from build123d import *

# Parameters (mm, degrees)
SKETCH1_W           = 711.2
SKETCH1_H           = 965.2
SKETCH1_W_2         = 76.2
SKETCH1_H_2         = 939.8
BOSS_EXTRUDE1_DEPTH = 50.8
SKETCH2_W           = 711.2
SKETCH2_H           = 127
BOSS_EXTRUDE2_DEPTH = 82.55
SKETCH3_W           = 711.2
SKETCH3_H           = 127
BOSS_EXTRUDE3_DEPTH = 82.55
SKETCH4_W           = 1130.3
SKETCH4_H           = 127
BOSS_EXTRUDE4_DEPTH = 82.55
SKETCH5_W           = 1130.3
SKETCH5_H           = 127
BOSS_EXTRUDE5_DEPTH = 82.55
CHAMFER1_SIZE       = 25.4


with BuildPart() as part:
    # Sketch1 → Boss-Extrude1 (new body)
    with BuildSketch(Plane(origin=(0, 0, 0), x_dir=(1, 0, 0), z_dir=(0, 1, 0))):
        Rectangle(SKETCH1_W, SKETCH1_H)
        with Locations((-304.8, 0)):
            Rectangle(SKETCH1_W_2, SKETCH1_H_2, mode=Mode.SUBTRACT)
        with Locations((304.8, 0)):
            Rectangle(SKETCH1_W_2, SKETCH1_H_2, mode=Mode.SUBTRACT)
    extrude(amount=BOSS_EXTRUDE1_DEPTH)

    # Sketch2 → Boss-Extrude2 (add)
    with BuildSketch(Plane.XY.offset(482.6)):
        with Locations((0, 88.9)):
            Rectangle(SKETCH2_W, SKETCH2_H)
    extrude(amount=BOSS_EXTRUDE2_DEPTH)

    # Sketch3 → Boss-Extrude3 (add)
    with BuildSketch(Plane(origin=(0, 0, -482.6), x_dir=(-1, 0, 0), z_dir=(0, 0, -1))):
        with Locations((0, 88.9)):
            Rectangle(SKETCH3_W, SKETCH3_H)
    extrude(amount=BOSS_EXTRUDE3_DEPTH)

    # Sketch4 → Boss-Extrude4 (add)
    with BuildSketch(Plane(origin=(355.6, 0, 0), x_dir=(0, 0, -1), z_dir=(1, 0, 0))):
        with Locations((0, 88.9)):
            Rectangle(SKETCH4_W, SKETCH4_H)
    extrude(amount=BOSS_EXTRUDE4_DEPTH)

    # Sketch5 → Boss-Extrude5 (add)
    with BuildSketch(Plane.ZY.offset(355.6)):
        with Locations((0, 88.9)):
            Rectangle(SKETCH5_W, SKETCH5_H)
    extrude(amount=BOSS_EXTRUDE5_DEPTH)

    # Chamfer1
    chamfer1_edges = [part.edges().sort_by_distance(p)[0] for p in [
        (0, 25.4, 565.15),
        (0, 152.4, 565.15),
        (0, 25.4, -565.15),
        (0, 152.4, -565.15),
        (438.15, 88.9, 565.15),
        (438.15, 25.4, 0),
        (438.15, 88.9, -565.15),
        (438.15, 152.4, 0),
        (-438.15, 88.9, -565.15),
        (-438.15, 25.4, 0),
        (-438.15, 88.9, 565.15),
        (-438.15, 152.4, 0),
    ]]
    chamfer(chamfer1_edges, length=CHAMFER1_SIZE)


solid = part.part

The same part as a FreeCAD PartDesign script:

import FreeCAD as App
import Part
import Sketcher

V = App.Vector
Q = App.Units.Quantity


def edges_at(feature, points):
    """Names of the edges that pass closest to the given points."""
    edges = feature.Shape.Edges
    near = lambda p: min(range(len(edges)), key=lambda i: edges[i].distToShape(Part.Vertex(*p))[0])
    return sorted({f"Edge{near(p) + 1}" for p in points})

doc = App.newDocument("Part")
params = doc.addObject("Spreadsheet::Sheet", "Params")
for row, (alias, value) in enumerate([
    ("sketch1_width", "28 in"),
    ("sketch1_width2", "3 in"),
    ("sketch1_height", "38 in"),
    ("sketch1_height2", "37 in"),
    ("pad1_length", "2 in"),
    ("sketch2_width", "28 in"),
    ("sketch2_height", "5 in"),
    ("pad2_length", "3.25 in"),
    ("sketch3_width", "28 in"),
    ("sketch3_height", "5 in"),
    ("pad3_length", "3.25 in"),
    ("sketch4_width", "5 in"),
    ("sketch4_height", "44.5 in"),
    ("pad4_length", "3.25 in"),
    ("sketch5_width", "5 in"),
    ("sketch5_height", "44.5 in"),
    ("pad5_length", "3.25 in"),
    ("chamfer_size", "1 in"),
], start=1):
    params.set(f"A{row}", alias)
    params.set(f"B{row}", "=" + value)
    params.setAlias(f"B{row}", alias)

body = doc.addObject("PartDesign::Body", "Body")

# Sketch on XZ plane
sketch1 = doc.addObject("Sketcher::SketchObject", "Sketch")
body.addObject(sketch1)
sketch1.AttachmentSupport = (doc.XZ_Plane, [""])
sketch1.MapMode = "FlatFace"
sketch1.addGeometry(Part.LineSegment(V(-356, -483, 0), V(-356, 483, 0)), False)
sketch1.addGeometry(Part.LineSegment(V(-356, 483, 0), V(356, 483, 0)), False)
sketch1.addGeometry(Part.LineSegment(V(356, 483, 0), V(356, -483, 0)), False)
sketch1.addGeometry(Part.LineSegment(V(356, -483, 0), V(-356, -483, 0)), False)
sketch1.addGeometry(Part.LineSegment(V(-267, 470, 0), V(-343, 470, 0)), False)
sketch1.addGeometry(Part.LineSegment(V(-343, 470, 0), V(-343, -470, 0)), False)
sketch1.addGeometry(Part.LineSegment(V(-343, -470, 0), V(-267, -470, 0)), False)
sketch1.addGeometry(Part.LineSegment(V(-267, -470, 0), V(-267, 470, 0)), False)
sketch1.addGeometry(Part.LineSegment(V(343, 470, 0), V(267, 470, 0)), False)
sketch1.addGeometry(Part.LineSegment(V(267, 470, 0), V(267, -470, 0)), False)
sketch1.addGeometry(Part.LineSegment(V(267, -470, 0), V(343, -470, 0)), False)
sketch1.addGeometry(Part.LineSegment(V(343, -470, 0), V(343, 470, 0)), False)
sketch1.addConstraint(Sketcher.Constraint("Coincident", 0, 2, 1, 1))
sketch1.addConstraint(Sketcher.Constraint("Coincident", 1, 2, 2, 1))
sketch1.addConstraint(Sketcher.Constraint("Coincident", 2, 2, 3, 1))
sketch1.addConstraint(Sketcher.Constraint("Coincident", 3, 2, 0, 1))
sketch1.addConstraint(Sketcher.Constraint("Coincident", 4, 2, 5, 1))
sketch1.addConstraint(Sketcher.Constraint("Coincident", 5, 2, 6, 1))
sketch1.addConstraint(Sketcher.Constraint("Coincident", 6, 2, 7, 1))
sketch1.addConstraint(Sketcher.Constraint("Coincident", 7, 2, 4, 1))
sketch1.addConstraint(Sketcher.Constraint("Coincident", 8, 2, 9, 1))
sketch1.addConstraint(Sketcher.Constraint("Coincident", 9, 2, 10, 1))
sketch1.addConstraint(Sketcher.Constraint("Coincident", 10, 2, 11, 1))
sketch1.addConstraint(Sketcher.Constraint("Coincident", 11, 2, 8, 1))
sketch1.addConstraint(Sketcher.Constraint("Vertical", 0))
sketch1.addConstraint(Sketcher.Constraint("Horizontal", 1))
sketch1.addConstraint(Sketcher.Constraint("Vertical", 2))
sketch1.addConstraint(Sketcher.Constraint("Horizontal", 3))
sketch1.addConstraint(Sketcher.Constraint("Horizontal", 4))
sketch1.addConstraint(Sketcher.Constraint("Vertical", 5))
sketch1.addConstraint(Sketcher.Constraint("Horizontal", 6))
sketch1.addConstraint(Sketcher.Constraint("Vertical", 7))
sketch1.addConstraint(Sketcher.Constraint("Horizontal", 8))
sketch1.addConstraint(Sketcher.Constraint("Vertical", 9))
sketch1.addConstraint(Sketcher.Constraint("Horizontal", 10))
sketch1.addConstraint(Sketcher.Constraint("Vertical", 11))
sketch1.addConstraint(Sketcher.Constraint("Symmetric", 0, 2, 2, 2, -1, 1))
sketch1.addConstraint(Sketcher.Constraint("Symmetric", 6, 2, 8, 2, -1, 1))
sketch1.addConstraint(Sketcher.Constraint("Symmetric", 4, 2, 10, 2, -1, 1))
sketch1.addConstraint(Sketcher.Constraint("Horizontal", 7, 2, 8, 2))
sketch1.addConstraint(Sketcher.Constraint("DistanceX", 1, 1, 1, 2, Q("28 in")))
sketch1.addConstraint(Sketcher.Constraint("DistanceX", 4, 2, 4, 1, Q("3 in")))
sketch1.addConstraint(Sketcher.Constraint("DistanceY", 0, 1, 0, 2, Q("38 in")))
sketch1.addConstraint(Sketcher.Constraint("DistanceY", 5, 2, 5, 1, Q("37 in")))
sketch1.addConstraint(Sketcher.Constraint("DistanceX", 7, 2, 8, 2, Q("21 in")))
sketch1.setExpression("Constraints[28]", "Params.sketch1_width")
sketch1.setExpression("Constraints[29]", "Params.sketch1_width2")
sketch1.setExpression("Constraints[30]", "Params.sketch1_height")
sketch1.setExpression("Constraints[31]", "Params.sketch1_height2")
pad1 = doc.addObject("PartDesign::Pad", "Pad")
body.addObject(pad1)
pad1.Profile = sketch1
pad1.setExpression("Length", "Params.pad1_length")
pad1.Reversed = True

# Sketch on XY plane
sketch2 = doc.addObject("Sketcher::SketchObject", "Sketch001")
body.addObject(sketch2)
sketch2.AttachmentSupport = (doc.XY_Plane, [""])
sketch2.MapMode = "FlatFace"
sketch2.AttachmentOffset = App.Placement(V(0, 0, 19 * 25.4), App.Rotation())
sketch2.addGeometry(Part.LineSegment(V(-356, 152, 0), V(-356, 25, 0)), False)
sketch2.addGeometry(Part.LineSegment(V(-356, 25, 0), V(356, 25, 0)), False)
sketch2.addGeometry(Part.LineSegment(V(356, 25, 0), V(356, 152, 0)), False)
sketch2.addGeometry(Part.LineSegment(V(356, 152, 0), V(-356, 152, 0)), False)
sketch2.addConstraint(Sketcher.Constraint("Coincident", 0, 2, 1, 1))
sketch2.addConstraint(Sketcher.Constraint("Coincident", 1, 2, 2, 1))
sketch2.addConstraint(Sketcher.Constraint("Coincident", 2, 2, 3, 1))
sketch2.addConstraint(Sketcher.Constraint("Coincident", 3, 2, 0, 1))
sketch2.addConstraint(Sketcher.Constraint("Vertical", 0))
sketch2.addConstraint(Sketcher.Constraint("Horizontal", 1))
sketch2.addConstraint(Sketcher.Constraint("Vertical", 2))
sketch2.addConstraint(Sketcher.Constraint("Horizontal", 3))
sketch2.addConstraint(Sketcher.Constraint("DistanceX", 1, 1, 1, 2, Q("28 in")))
sketch2.addConstraint(Sketcher.Constraint("DistanceY", 0, 2, 0, 1, Q("5 in")))
sketch2.addConstraint(Sketcher.Constraint("DistanceX", 0, 2, -1, 1, Q("14 in")))
sketch2.addConstraint(Sketcher.Constraint("DistanceY", -1, 1, 0, 2, Q("1 in")))
sketch2.setExpression("Constraints[8]", "Params.sketch2_width")
sketch2.setExpression("Constraints[9]", "Params.sketch2_height")
pad2 = doc.addObject("PartDesign::Pad", "Pad001")
body.addObject(pad2)
pad2.Profile = sketch2
pad2.setExpression("Length", "Params.pad2_length")

# Sketch on XY plane
sketch3 = doc.addObject("Sketcher::SketchObject", "Sketch002")
body.addObject(sketch3)
sketch3.AttachmentSupport = (doc.XY_Plane, [""])
sketch3.MapMode = "FlatFace"
sketch3.AttachmentOffset = App.Placement(V(0, 0, -19 * 25.4), App.Rotation())
sketch3.addGeometry(Part.LineSegment(V(356, 152, 0), V(356, 25, 0)), False)
sketch3.addGeometry(Part.LineSegment(V(356, 25, 0), V(-356, 25, 0)), False)
sketch3.addGeometry(Part.LineSegment(V(-356, 25, 0), V(-356, 152, 0)), False)
sketch3.addGeometry(Part.LineSegment(V(-356, 152, 0), V(356, 152, 0)), False)
sketch3.addConstraint(Sketcher.Constraint("Coincident", 0, 2, 1, 1))
sketch3.addConstraint(Sketcher.Constraint("Coincident", 1, 2, 2, 1))
sketch3.addConstraint(Sketcher.Constraint("Coincident", 2, 2, 3, 1))
sketch3.addConstraint(Sketcher.Constraint("Coincident", 3, 2, 0, 1))
sketch3.addConstraint(Sketcher.Constraint("Vertical", 0))
sketch3.addConstraint(Sketcher.Constraint("Horizontal", 1))
sketch3.addConstraint(Sketcher.Constraint("Vertical", 2))
sketch3.addConstraint(Sketcher.Constraint("Horizontal", 3))
sketch3.addConstraint(Sketcher.Constraint("DistanceX", 1, 2, 1, 1, Q("28 in")))
sketch3.addConstraint(Sketcher.Constraint("DistanceY", 0, 2, 0, 1, Q("5 in")))
sketch3.addConstraint(Sketcher.Constraint("DistanceX", -1, 1, 0, 2, Q("14 in")))
sketch3.addConstraint(Sketcher.Constraint("DistanceY", -1, 1, 0, 2, Q("1 in")))
sketch3.setExpression("Constraints[8]", "Params.sketch3_width")
sketch3.setExpression("Constraints[9]", "Params.sketch3_height")
pad3 = doc.addObject("PartDesign::Pad", "Pad002")
body.addObject(pad3)
pad3.Profile = sketch3
pad3.setExpression("Length", "Params.pad3_length")
pad3.Reversed = True

# Sketch on YZ plane
sketch4 = doc.addObject("Sketcher::SketchObject", "Sketch003")
body.addObject(sketch4)
sketch4.AttachmentSupport = (doc.YZ_Plane, [""])
sketch4.MapMode = "FlatFace"
sketch4.AttachmentOffset = App.Placement(V(0, 0, 14 * 25.4), App.Rotation())
sketch4.addGeometry(Part.LineSegment(V(152, 565, 0), V(25, 565, 0)), False)
sketch4.addGeometry(Part.LineSegment(V(25, 565, 0), V(25, -565, 0)), False)
sketch4.addGeometry(Part.LineSegment(V(25, -565, 0), V(152, -565, 0)), False)
sketch4.addGeometry(Part.LineSegment(V(152, -565, 0), V(152, 565, 0)), False)
sketch4.addConstraint(Sketcher.Constraint("Coincident", 0, 2, 1, 1))
sketch4.addConstraint(Sketcher.Constraint("Coincident", 1, 2, 2, 1))
sketch4.addConstraint(Sketcher.Constraint("Coincident", 2, 2, 3, 1))
sketch4.addConstraint(Sketcher.Constraint("Coincident", 3, 2, 0, 1))
sketch4.addConstraint(Sketcher.Constraint("Horizontal", 0))
sketch4.addConstraint(Sketcher.Constraint("Vertical", 1))
sketch4.addConstraint(Sketcher.Constraint("Horizontal", 2))
sketch4.addConstraint(Sketcher.Constraint("Vertical", 3))
sketch4.addConstraint(Sketcher.Constraint("DistanceX", 0, 2, 0, 1, Q("5 in")))
sketch4.addConstraint(Sketcher.Constraint("DistanceY", 1, 2, 1, 1, Q("44.5 in")))
sketch4.addConstraint(Sketcher.Constraint("DistanceX", -1, 1, 0, 2, Q("1 in")))
sketch4.addConstraint(Sketcher.Constraint("DistanceY", -1, 1, 0, 2, Q("22.25 in")))
sketch4.setExpression("Constraints[8]", "Params.sketch4_width")
sketch4.setExpression("Constraints[9]", "Params.sketch4_height")
pad4 = doc.addObject("PartDesign::Pad", "Pad003")
body.addObject(pad4)
pad4.Profile = sketch4
pad4.setExpression("Length", "Params.pad4_length")

# Sketch on YZ plane
sketch5 = doc.addObject("Sketcher::SketchObject", "Sketch004")
body.addObject(sketch5)
sketch5.AttachmentSupport = (doc.YZ_Plane, [""])
sketch5.MapMode = "FlatFace"
sketch5.AttachmentOffset = App.Placement(V(0, 0, -14 * 25.4), App.Rotation())
sketch5.addGeometry(Part.LineSegment(V(152, -565, 0), V(25, -565, 0)), False)
sketch5.addGeometry(Part.LineSegment(V(25, -565, 0), V(25, 565, 0)), False)
sketch5.addGeometry(Part.LineSegment(V(25, 565, 0), V(152, 565, 0)), False)
sketch5.addGeometry(Part.LineSegment(V(152, 565, 0), V(152, -565, 0)), False)
sketch5.addConstraint(Sketcher.Constraint("Coincident", 0, 2, 1, 1))
sketch5.addConstraint(Sketcher.Constraint("Coincident", 1, 2, 2, 1))
sketch5.addConstraint(Sketcher.Constraint("Coincident", 2, 2, 3, 1))
sketch5.addConstraint(Sketcher.Constraint("Coincident", 3, 2, 0, 1))
sketch5.addConstraint(Sketcher.Constraint("Horizontal", 0))
sketch5.addConstraint(Sketcher.Constraint("Vertical", 1))
sketch5.addConstraint(Sketcher.Constraint("Horizontal", 2))
sketch5.addConstraint(Sketcher.Constraint("Vertical", 3))
sketch5.addConstraint(Sketcher.Constraint("DistanceX", 0, 2, 0, 1, Q("5 in")))
sketch5.addConstraint(Sketcher.Constraint("DistanceY", 1, 1, 1, 2, Q("44.5 in")))
sketch5.addConstraint(Sketcher.Constraint("DistanceX", -1, 1, 0, 2, Q("1 in")))
sketch5.addConstraint(Sketcher.Constraint("DistanceY", 0, 2, -1, 1, Q("22.25 in")))
sketch5.setExpression("Constraints[8]", "Params.sketch5_width")
sketch5.setExpression("Constraints[9]", "Params.sketch5_height")
pad5 = doc.addObject("PartDesign::Pad", "Pad004")
body.addObject(pad5)
pad5.Profile = sketch5
pad5.setExpression("Length", "Params.pad5_length")
pad5.Reversed = True
doc.recompute()

chamfer = doc.addObject("PartDesign::Chamfer", "Chamfer")
body.addObject(chamfer)
chamfer.Base = (pad5, edges_at(pad5, [
    (0, 25.4, 565.15),
    (0, 152.4, 565.15),
    (0, 25.4, -565.15),
    (0, 152.4, -565.15),
    (438.15, 88.9, 565.15),
    (438.15, 25.4, 0),
    (438.15, 88.9, -565.15),
    (438.15, 152.4, 0),
    (-438.15, 88.9, -565.15),
    (-438.15, 25.4, 0),
    (-438.15, 88.9, 565.15),
    (-438.15, 152.4, 0),
]))
chamfer.setExpression("Size", "Params.chamfer_size")

doc.recompute()
